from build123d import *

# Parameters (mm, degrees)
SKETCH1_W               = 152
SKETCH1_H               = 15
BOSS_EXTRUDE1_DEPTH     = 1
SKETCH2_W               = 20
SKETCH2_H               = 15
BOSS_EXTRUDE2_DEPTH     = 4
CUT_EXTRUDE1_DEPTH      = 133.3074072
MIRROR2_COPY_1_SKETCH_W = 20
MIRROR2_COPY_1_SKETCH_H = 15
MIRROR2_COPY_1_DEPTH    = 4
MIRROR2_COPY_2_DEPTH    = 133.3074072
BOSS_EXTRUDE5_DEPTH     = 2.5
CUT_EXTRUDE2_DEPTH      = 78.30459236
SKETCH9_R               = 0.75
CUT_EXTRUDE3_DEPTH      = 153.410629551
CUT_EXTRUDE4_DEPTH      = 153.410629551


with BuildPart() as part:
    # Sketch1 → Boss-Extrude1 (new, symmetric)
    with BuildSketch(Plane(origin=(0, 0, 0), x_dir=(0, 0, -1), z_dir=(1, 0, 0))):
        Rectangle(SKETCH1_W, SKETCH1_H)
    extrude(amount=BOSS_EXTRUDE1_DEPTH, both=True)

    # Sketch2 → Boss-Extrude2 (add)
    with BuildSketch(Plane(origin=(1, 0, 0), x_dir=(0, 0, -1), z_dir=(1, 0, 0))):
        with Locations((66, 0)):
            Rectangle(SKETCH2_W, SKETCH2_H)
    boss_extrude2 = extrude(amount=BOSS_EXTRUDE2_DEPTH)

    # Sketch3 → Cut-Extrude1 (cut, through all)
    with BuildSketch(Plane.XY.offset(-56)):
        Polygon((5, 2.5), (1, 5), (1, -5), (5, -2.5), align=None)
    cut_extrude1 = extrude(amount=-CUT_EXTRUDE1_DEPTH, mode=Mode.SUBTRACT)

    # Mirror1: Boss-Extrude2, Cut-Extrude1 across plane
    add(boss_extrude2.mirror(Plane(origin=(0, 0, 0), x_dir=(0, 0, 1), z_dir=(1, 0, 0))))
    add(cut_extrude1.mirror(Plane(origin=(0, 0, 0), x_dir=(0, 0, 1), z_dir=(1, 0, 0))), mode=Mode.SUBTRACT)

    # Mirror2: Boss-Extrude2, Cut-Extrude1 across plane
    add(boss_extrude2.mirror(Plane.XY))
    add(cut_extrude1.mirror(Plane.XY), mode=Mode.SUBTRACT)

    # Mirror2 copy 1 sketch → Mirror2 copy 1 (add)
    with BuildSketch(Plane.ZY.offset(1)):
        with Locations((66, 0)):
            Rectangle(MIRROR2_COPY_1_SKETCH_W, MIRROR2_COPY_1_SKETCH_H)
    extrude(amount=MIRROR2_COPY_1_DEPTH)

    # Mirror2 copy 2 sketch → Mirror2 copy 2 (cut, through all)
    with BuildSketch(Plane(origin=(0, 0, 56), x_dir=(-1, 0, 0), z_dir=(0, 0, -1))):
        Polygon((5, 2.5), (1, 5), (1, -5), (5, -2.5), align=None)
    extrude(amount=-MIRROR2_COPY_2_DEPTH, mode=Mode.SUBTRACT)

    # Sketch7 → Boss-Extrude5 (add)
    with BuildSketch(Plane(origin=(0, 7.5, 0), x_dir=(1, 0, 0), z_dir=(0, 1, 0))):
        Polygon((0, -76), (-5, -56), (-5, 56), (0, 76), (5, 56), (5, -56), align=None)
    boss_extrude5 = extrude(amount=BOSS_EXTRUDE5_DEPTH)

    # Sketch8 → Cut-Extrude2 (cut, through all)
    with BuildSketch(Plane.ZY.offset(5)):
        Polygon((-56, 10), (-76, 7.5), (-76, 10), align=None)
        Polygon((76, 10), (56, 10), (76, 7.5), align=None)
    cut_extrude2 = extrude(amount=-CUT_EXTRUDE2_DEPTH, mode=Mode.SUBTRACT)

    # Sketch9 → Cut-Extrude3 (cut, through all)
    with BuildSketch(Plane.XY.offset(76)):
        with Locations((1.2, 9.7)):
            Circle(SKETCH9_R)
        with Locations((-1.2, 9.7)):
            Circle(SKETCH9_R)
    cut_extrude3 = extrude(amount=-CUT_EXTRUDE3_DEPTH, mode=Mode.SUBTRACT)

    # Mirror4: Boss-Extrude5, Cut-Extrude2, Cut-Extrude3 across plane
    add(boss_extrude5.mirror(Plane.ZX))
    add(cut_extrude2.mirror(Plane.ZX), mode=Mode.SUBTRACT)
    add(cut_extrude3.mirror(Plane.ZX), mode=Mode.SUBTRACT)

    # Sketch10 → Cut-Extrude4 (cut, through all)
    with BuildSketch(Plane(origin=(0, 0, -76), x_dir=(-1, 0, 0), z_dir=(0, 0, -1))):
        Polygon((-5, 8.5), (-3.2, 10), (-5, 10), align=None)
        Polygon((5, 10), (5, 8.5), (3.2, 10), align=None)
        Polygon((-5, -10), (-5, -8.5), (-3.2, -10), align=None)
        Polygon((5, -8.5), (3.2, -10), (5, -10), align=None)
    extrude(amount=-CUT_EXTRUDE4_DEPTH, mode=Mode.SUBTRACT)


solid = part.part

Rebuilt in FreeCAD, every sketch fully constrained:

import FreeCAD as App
import Part
import Sketcher

V = App.Vector
Q = App.Units.Quantity

doc = App.newDocument("Part")
body = doc.addObject("PartDesign::Body", "Body")

sketch1 = body.newObject("Sketcher::SketchObject", "Sketch")
sketch1.AttachmentSupport = (doc.getObject("YZ_Plane"), [""])
sketch1.MapMode = "FlatFace"
sketch1.addGeometry(Part.LineSegment(V(8, 76, 0), V(-8, 76, 0)), False)
sketch1.addGeometry(Part.LineSegment(V(-8, 76, 0), V(-8, -76, 0)), False)
sketch1.addGeometry(Part.LineSegment(V(-8, -76, 0), V(8, -76, 0)), False)
sketch1.addGeometry(Part.LineSegment(V(8, -76, 0), V(8, 76, 0)), False)
sketch1.addConstraint(Sketcher.Constraint("Coincident", 0, 2, 1, 1))
sketch1.addConstraint(Sketcher.Constraint("Coincident", 1, 2, 2, 1))
sketch1.addConstraint(Sketcher.Constraint("Coincident", 2, 2, 3, 1))
sketch1.addConstraint(Sketcher.Constraint("Coincident", 3, 2, 0, 1))
sketch1.addConstraint(Sketcher.Constraint("Horizontal", 0))
sketch1.addConstraint(Sketcher.Constraint("Vertical", 1))
sketch1.addConstraint(Sketcher.Constraint("Horizontal", 2))
sketch1.addConstraint(Sketcher.Constraint("Vertical", 3))
sketch1.addConstraint(Sketcher.Constraint("Symmetric", 0, 2, 2, 2, -1, 1))
sketch1.addConstraint(Sketcher.Constraint("DistanceX", 0, 2, 0, 1, Q("15 mm")))
sketch1.addConstraint(Sketcher.Constraint("DistanceY", 1, 2, 1, 1, Q("152 mm")))
pad1 = body.newObject("PartDesign::Pad", "Pad")
pad1.Profile = sketch1
pad1.Length = 2
pad1.Midplane = True

sketch2 = body.newObject("Sketcher::SketchObject", "Sketch001")
sketch2.AttachmentSupport = (doc.getObject("YZ_Plane"), [""])
sketch2.MapMode = "FlatFace"
sketch2.AttachmentOffset = App.Placement(V(0, 0, 1), App.Rotation())
sketch2.addGeometry(Part.LineSegment(V(8, -56, 0), V(-8, -56, 0)), False)
sketch2.addGeometry(Part.LineSegment(V(-8, -56, 0), V(-8, -76, 0)), False)
sketch2.addGeometry(Part.LineSegment(V(-8, -76, 0), V(8, -76, 0)), False)
sketch2.addGeometry(Part.LineSegment(V(8, -76, 0), V(8, -56, 0)), False)
sketch2.addConstraint(Sketcher.Constraint("Coincident", 0, 2, 1, 1))
sketch2.addConstraint(Sketcher.Constraint("Coincident", 1, 2, 2, 1))
sketch2.addConstraint(Sketcher.Constraint("Coincident", 2, 2, 3, 1))
sketch2.addConstraint(Sketcher.Constraint("Coincident", 3, 2, 0, 1))
sketch2.addConstraint(Sketcher.Constraint("Horizontal", 0))
sketch2.addConstraint(Sketcher.Constraint("Vertical", 1))
sketch2.addConstraint(Sketcher.Constraint("Horizontal", 2))
sketch2.addConstraint(Sketcher.Constraint("Vertical", 3))
sketch2.addConstraint(Sketcher.Constraint("DistanceX", 0, 2, 0, 1, Q("15 mm")))
sketch2.addConstraint(Sketcher.Constraint("DistanceY", 1, 2, 1, 1, Q("20 mm")))
sketch2.addConstraint(Sketcher.Constraint("DistanceY", 0, 2, -1, 1, Q("56 mm")))
sketch2.addConstraint(Sketcher.Constraint("DistanceX", 0, 2, -1, 1, Q("7.5 mm")))
pad2 = body.newObject("PartDesign::Pad", "Pad001")
pad2.Profile = sketch2
pad2.Length = 4

sketch3 = body.newObject("Sketcher::SketchObject", "Sketch002")
sketch3.AttachmentSupport = (doc.getObject("XY_Plane"), [""])
sketch3.MapMode = "FlatFace"
sketch3.AttachmentOffset = App.Placement(V(0, 0, -56), App.Rotation())
sketch3.addGeometry(Part.LineSegment(V(5, 2.5, 0), V(1, 5, 0)), False)
sketch3.addGeometry(Part.LineSegment(V(1, 5, 0), V(1, -5, 0)), False)
sketch3.addGeometry(Part.LineSegment(V(1, -5, 0), V(5, -2.5, 0)), False)
sketch3.addGeometry(Part.LineSegment(V(5, -2.5, 0), V(5, 2.5, 0)), False)
sketch3.addConstraint(Sketcher.Constraint("Coincident", 0, 2, 1, 1))
sketch3.addConstraint(Sketcher.Constraint("Coincident", 1, 2, 2, 1))
sketch3.addConstraint(Sketcher.Constraint("Coincident", 2, 2, 3, 1))
sketch3.addConstraint(Sketcher.Constraint("Coincident", 3, 2, 0, 1))
sketch3.addConstraint(Sketcher.Constraint("Vertical", 1))
sketch3.addConstraint(Sketcher.Constraint("Vertical", 3))
sketch3.addConstraint(Sketcher.Constraint("Equal", 0, 2))
sketch3.addConstraint(Sketcher.Constraint("DistanceY", 1, 2, 1, 1, Q("10 mm")))
sketch3.addConstraint(Sketcher.Constraint("DistanceY", 3, 1, 3, 2, Q("5 mm")))
sketch3.addConstraint(Sketcher.Constraint("DistanceX", -1, 1, 0, 2, Q("1 mm")))
sketch3.addConstraint(Sketcher.Constraint("DistanceY", -1, 1, 0, 2, Q("5 mm")))
sketch3.addConstraint(Sketcher.Constraint("DistanceX", -1, 1, 2, 2, Q("5 mm")))
pocket1 = body.newObject("PartDesign::Pocket", "Pocket")
pocket1.Profile = sketch3
pocket1.Type = "ThroughAll"
doc.recompute()

mirrored = body.newObject("PartDesign::Mirrored", "Mirrored")
mirrored.Originals = [pad2, pocket1]
mirrored.MirrorPlane = (doc.getObject("YZ_Plane"), [""])
body.Tip = mirrored
doc.recompute()

mirrored2 = body.newObject("PartDesign::Mirrored", "Mirrored001")
mirrored2.Originals = [pad2, pocket1]
mirrored2.MirrorPlane = (doc.getObject("XY_Plane"), [""])
body.Tip = mirrored2

sketch4 = body.newObject("Sketcher::SketchObject", "Sketch003")
sketch4.AttachmentSupport = (doc.getObject("YZ_Plane"), [""])
sketch4.MapMode = "FlatFace"
sketch4.AttachmentOffset = App.Placement(V(0, 0, -1), App.Rotation())
sketch4.addGeometry(Part.LineSegment(V(8, 56, 0), V(-8, 56, 0)), False)
sketch4.addGeometry(Part.LineSegment(V(-8, 56, 0), V(-8, 76, 0)), False)
sketch4.addGeometry(Part.LineSegment(V(-8, 76, 0), V(8, 76, 0)), False)
sketch4.addGeometry(Part.LineSegment(V(8, 76, 0), V(8, 56, 0)), False)
sketch4.addConstraint(Sketcher.Constraint("Coincident", 0, 2, 1, 1))
sketch4.addConstraint(Sketcher.Constraint("Coincident", 1, 2, 2, 1))
sketch4.addConstraint(Sketcher.Constraint("Coincident", 2, 2, 3, 1))
sketch4.addConstraint(Sketcher.Constraint("Coincident", 3, 2, 0, 1))
sketch4.addConstraint(Sketcher.Constraint("Horizontal", 0))
sketch4.addConstraint(Sketcher.Constraint("Vertical", 1))
sketch4.addConstraint(Sketcher.Constraint("Horizontal", 2))
sketch4.addConstraint(Sketcher.Constraint("Vertical", 3))
sketch4.addConstraint(Sketcher.Constraint("DistanceX", 0, 2, 0, 1, Q("15 mm")))
sketch4.addConstraint(Sketcher.Constraint("DistanceY", 1, 1, 1, 2, Q("20 mm")))
sketch4.addConstraint(Sketcher.Constraint("DistanceY", -1, 1, 0, 2, Q("56 mm")))
sketch4.addConstraint(Sketcher.Constraint("DistanceX", 0, 2, -1, 1, Q("7.5 mm")))
pad3 = body.newObject("PartDesign::Pad", "Pad002")
pad3.Profile = sketch4
pad3.Length = 4
pad3.Reversed = True

sketch5 = body.newObject("Sketcher::SketchObject", "Sketch004")
sketch5.AttachmentSupport = (doc.getObject("XY_Plane"), [""])
sketch5.MapMode = "FlatFace"
sketch5.AttachmentOffset = App.Placement(V(0, 0, 56), App.Rotation())
sketch5.addGeometry(Part.LineSegment(V(-5, 2.5, 0), V(-1, 5, 0)), False)
sketch5.addGeometry(Part.LineSegment(V(-1, 5, 0), V(-1, -5, 0)), False)
sketch5.addGeometry(Part.LineSegment(V(-1, -5, 0), V(-5, -2.5, 0)), False)
sketch5.addGeometry(Part.LineSegment(V(-5, -2.5, 0), V(-5, 2.5, 0)), False)
sketch5.addConstraint(Sketcher.Constraint("Coincident", 0, 2, 1, 1))
sketch5.addConstraint(Sketcher.Constraint("Coincident", 1, 2, 2, 1))
sketch5.addConstraint(Sketcher.Constraint("Coincident", 2, 2, 3, 1))
sketch5.addConstraint(Sketcher.Constraint("Coincident", 3, 2, 0, 1))
sketch5.addConstraint(Sketcher.Constraint("Vertical", 1))
sketch5.addConstraint(Sketcher.Constraint("Vertical", 3))
sketch5.addConstraint(Sketcher.Constraint("Equal", 0, 2))
sketch5.addConstraint(Sketcher.Constraint("DistanceY", 1, 2, 1, 1, Q("10 mm")))
sketch5.addConstraint(Sketcher.Constraint("DistanceY", 3, 1, 3, 2, Q("5 mm")))
sketch5.addConstraint(Sketcher.Constraint("DistanceX", 0, 2, -1, 1, Q("1 mm")))
sketch5.addConstraint(Sketcher.Constraint("DistanceY", -1, 1, 0, 2, Q("5 mm")))
sketch5.addConstraint(Sketcher.Constraint("DistanceX", 2, 2, -1, 1, Q("5 mm")))
pocket2 = body.newObject("PartDesign::Pocket", "Pocket001")
pocket2.Profile = sketch5
pocket2.Type = "ThroughAll"
pocket2.Reversed = True

sketch6 = body.newObject("Sketcher::SketchObject", "Sketch005")
sketch6.AttachmentSupport = (doc.getObject("XZ_Plane"), [""])
sketch6.MapMode = "FlatFace"
sketch6.AttachmentOffset = App.Placement(V(0, 0, -7.5), App.Rotation())
sketch6.addGeometry(Part.LineSegment(V(-5, 56, 0), V(0, 76, 0)), False)
sketch6.addGeometry(Part.LineSegment(V(0, 76, 0), V(5, 56, 0)), False)
sketch6.addGeometry(Part.LineSegment(V(5, 56, 0), V(5, -56, 0)), False)
sketch6.addGeometry(Part.LineSegment(V(5, -56, 0), V(0, -76, 0)), False)
sketch6.addGeometry(Part.LineSegment(V(0, -76, 0), V(-5, -56, 0)), False)
sketch6.addGeometry(Part.LineSegment(V(-5, -56, 0), V(-5, 56, 0)), False)
sketch6.addConstraint(Sketcher.Constraint("Coincident", 0, 2, 1, 1))
sketch6.addConstraint(Sketcher.Constraint("Coincident", 1, 2, 2, 1))
sketch6.addConstraint(Sketcher.Constraint("Coincident", 2, 2, 3, 1))
sketch6.addConstraint(Sketcher.Constraint("Coincident", 3, 2, 4, 1))
sketch6.addConstraint(Sketcher.Constraint("Coincident", 4, 2, 5, 1))
sketch6.addConstraint(Sketcher.Constraint("Coincident", 5, 2, 0, 1))
sketch6.addConstraint(Sketcher.Constraint("Vertical", 2))
sketch6.addConstraint(Sketcher.Constraint("Vertical", 5))
sketch6.addConstraint(Sketcher.Constraint("Symmetric", 0, 2, 3, 2, -1, 1))
sketch6.addConstraint(Sketcher.Constraint("Symmetric", 1, 2, 4, 2, -1, 1))
sketch6.addConstraint(Sketcher.Constraint("PointOnObject", 0, 2, -2))
sketch6.addConstraint(Sketcher.Constraint("Parallel", 0, 3))
sketch6.addConstraint(Sketcher.Constraint("Horizontal", 2, 2, 4, 2))
sketch6.addConstraint(Sketcher.Constraint("DistanceY", 2, 2, 2, 1, Q("112 mm")))
sketch6.addConstraint(Sketcher.Constraint("DistanceY", -1, 1, 0, 2, Q("76 mm")))
sketch6.addConstraint(Sketcher.Constraint("DistanceX", -1, 1, 1, 2, Q("5 mm")))
pad4 = body.newObject("PartDesign::Pad", "Pad003")
pad4.Profile = sketch6
pad4.Length = 2.5
pad4.Reversed = True

sketch7 = body.newObject("Sketcher::SketchObject", "Sketch006")
sketch7.AttachmentSupport = (doc.getObject("YZ_Plane"), [""])
sketch7.MapMode = "FlatFace"
sketch7.AttachmentOffset = App.Placement(V(0, 0, -5), App.Rotation())
sketch7.addGeometry(Part.LineSegment(V(7.5, -76, 0), V(10, -56, 0)), False)
sketch7.addGeometry(Part.LineSegment(V(10, -56, 0), V(10, -76, 0)), False)
sketch7.addGeometry(Part.LineSegment(V(10, -76, 0), V(7.5, -76, 0)), False)
sketch7.addGeometry(Part.LineSegment(V(10, 76, 0), V(10, 56, 0)), False)
sketch7.addGeometry(Part.LineSegment(V(10, 56, 0), V(7.5, 76, 0)), False)
sketch7.addGeometry(Part.LineSegment(V(7.5, 76, 0), V(10, 76, 0)), False)
sketch7.addConstraint(Sketcher.Constraint("Coincident", 0, 2, 1, 1))
sketch7.addConstraint(Sketcher.Constraint("Coincident", 1, 2, 2, 1))
sketch7.addConstraint(Sketcher.Constraint("Coincident", 2, 2, 0, 1))
sketch7.addConstraint(Sketcher.Constraint("Coincident", 3, 2, 4, 1))
sketch7.addConstraint(Sketcher.Constraint("Coincident", 4, 2, 5, 1))
sketch7.addConstraint(Sketcher.Constraint("Coincident", 5, 2, 3, 1))
sketch7.addConstraint(Sketcher.Constraint("Vertical", 1))
sketch7.addConstraint(Sketcher.Constraint("Horizontal", 2))
sketch7.addConstraint(Sketcher.Constraint("Vertical", 3))
sketch7.addConstraint(Sketcher.Constraint("Horizontal", 5))
sketch7.addConstraint(Sketcher.Constraint("Symmetric", 0, 2, 3, 2, -1))
sketch7.addConstraint(Sketcher.Constraint("Symmetric", 2, 2, 4, 2, -1))
sketch7.addConstraint(Sketcher.Constraint("DistanceY", 1, 2, 1, 1, Q("20 mm")))
sketch7.addConstraint(Sketcher.Constraint("DistanceX", 2, 2, 2, 1, Q("2.5 mm")))
sketch7.addConstraint(Sketcher.Constraint("DistanceX", -1, 1, 0, 2, Q("10 mm")))
sketch7.addConstraint(Sketcher.Constraint("DistanceY", 0, 2, -1, 1, Q("56 mm")))
pocket3 = body.newObject("PartDesign::Pocket", "Pocket002")
pocket3.Profile = sketch7
pocket3.Type = "ThroughAll"
pocket3.Reversed = True

sketch8 = body.newObject("Sketcher::SketchObject", "Sketch007")
sketch8.AttachmentSupport = (doc.getObject("XY_Plane"), [""])
sketch8.MapMode = "FlatFace"
sketch8.AttachmentOffset = App.Placement(V(0, 0, 76), App.Rotation())
sketch8.addGeometry(Part.Circle(V(1.2, 9.7, 0), V(0, 0, 1), 0.8), False)
sketch8.addGeometry(Part.Circle(V(-1.2, 9.7, 0), V(0, 0, 1), 0.8), False)
sketch8.addConstraint(Sketcher.Constraint("Equal", 0, 1))
sketch8.addConstraint(Sketcher.Constraint("Symmetric", 0, 3, 1, 3, -2))
sketch8.addConstraint(Sketcher.Constraint("Diameter", 0, Q("1.5 mm")))
sketch8.addConstraint(Sketcher.Constraint("DistanceX", -1, 1, 0, 3, Q("1.2 mm")))
sketch8.addConstraint(Sketcher.Constraint("DistanceY", -1, 1, 0, 3, Q("9.7 mm")))
pocket4 = body.newObject("PartDesign::Pocket", "Pocket003")
pocket4.Profile = sketch8
pocket4.Type = "ThroughAll"
doc.recompute()

mirrored3 = body.newObject("PartDesign::Mirrored", "Mirrored002")
mirrored3.Originals = [pad4, pocket3, pocket4]
mirrored3.MirrorPlane = (doc.getObject("XZ_Plane"), [""])
body.Tip = mirrored3

sketch9 = body.newObject("Sketcher::SketchObject", "Sketch008")
sketch9.AttachmentSupport = (doc.getObject("XY_Plane"), [""])
sketch9.MapMode = "FlatFace"
sketch9.AttachmentOffset = App.Placement(V(0, 0, -76), App.Rotation())
sketch9.addGeometry(Part.LineSegment(V(5, 8.5, 0), V(3.2, 10, 0)), False)
sketch9.addGeometry(Part.LineSegment(V(3.2, 10, 0), V(5, 10, 0)), False)
sketch9.addGeometry(Part.LineSegment(V(5, 10, 0), V(5, 8.5, 0)), False)
sketch9.addGeometry(Part.LineSegment(V(-5, 8.5, 0), V(-5, 10, 0)), False)
sketch9.addGeometry(Part.LineSegment(V(-5, 10, 0), V(-3.2, 10, 0)), False)
sketch9.addGeometry(Part.LineSegment(V(-3.2, 10, 0), V(-5, 8.5, 0)), False)
sketch9.addGeometry(Part.LineSegment(V(5, -8.5, 0), V(5, -10, 0)), False)
sketch9.addGeometry(Part.LineSegment(V(5, -10, 0), V(3.2, -10, 0)), False)
sketch9.addGeometry(Part.LineSegment(V(3.2, -10, 0), V(5, -8.5, 0)), False)
sketch9.addGeometry(Part.LineSegment(V(-5, -8.5, 0), V(-3.2, -10, 0)), False)
sketch9.addGeometry(Part.LineSegment(V(-3.2, -10, 0), V(-5, -10, 0)), False)
sketch9.addGeometry(Part.LineSegment(V(-5, -10, 0), V(-5, -8.5, 0)), False)
sketch9.addConstraint(Sketcher.Constraint("Coincident", 0, 2, 1, 1))
sketch9.addConstraint(Sketcher.Constraint("Coincident", 1, 2, 2, 1))
sketch9.addConstraint(Sketcher.Constraint("Coincident", 2, 2, 0, 1))
sketch9.addConstraint(Sketcher.Constraint("Coincident", 3, 2, 4, 1))
sketch9.addConstraint(Sketcher.Constraint("Coincident", 4, 2, 5, 1))
sketch9.addConstraint(Sketcher.Constraint("Coincident", 5, 2, 3, 1))
sketch9.addConstraint(Sketcher.Constraint("Coincident", 6, 2, 7, 1))
sketch9.addConstraint(Sketcher.Constraint("Coincident", 7, 2, 8, 1))
sketch9.addConstraint(Sketcher.Constraint("Coincident", 8, 2, 6, 1))
sketch9.addConstraint(Sketcher.Constraint("Coincident", 9, 2, 10, 1))
sketch9.addConstraint(Sketcher.Constraint("Coincident", 10, 2, 11, 1))
sketch9.addConstraint(Sketcher.Constraint("Coincident", 11, 2, 9, 1))
sketch9.addConstraint(Sketcher.Constraint("Horizontal", 1))
sketch9.addConstraint(Sketcher.Constraint("Vertical", 2))
sketch9.addConstraint(Sketcher.Constraint("Vertical", 3))
sketch9.addConstraint(Sketcher.Constraint("Horizontal", 4))
sketch9.addConstraint(Sketcher.Constraint("Vertical", 6))
sketch9.addConstraint(Sketcher.Constraint("Horizontal", 7))
sketch9.addConstraint(Sketcher.Constraint("Horizontal", 10))
sketch9.addConstraint(Sketcher.Constraint("Vertical", 11))
sketch9.addConstraint(Sketcher.Constraint("Symmetric", 3, 2, 6, 2, -1, 1))
sketch9.addConstraint(Sketcher.Constraint("Symmetric", 0, 2, 9, 2, -1, 1))
sketch9.addConstraint(Sketcher.Constraint("Symmetric", 2, 2, 11, 2, -1, 1))
sketch9.addConstraint(Sketcher.Constraint("Symmetric", 1, 2, 3, 2, -2))
sketch9.addConstraint(Sketcher.Constraint("Parallel", 5, 8))
sketch9.addConstraint(Sketcher.Constraint("Horizontal", 2, 2, 5, 2))
sketch9.addConstraint(Sketcher.Constraint("Horizontal", 8, 2, 11, 2))
sketch9.addConstraint(Sketcher.Constraint("Vertical", 0, 2, 7, 2))
sketch9.addConstraint(Sketcher.Constraint("DistanceX", 1, 1, 1, 2, Q("1.8 mm")))
sketch9.addConstraint(Sketcher.Constraint("DistanceY", 2, 2, 2, 1, Q("1.5 mm")))
sketch9.addConstraint(Sketcher.Constraint("DistanceY", -1, 1, 0, 2, Q("10 mm")))
sketch9.addConstraint(Sketcher.Constraint("DistanceX", -1, 1, 1, 2, Q("5 mm")))
pocket5 = body.newObject("PartDesign::Pocket", "Pocket004")
pocket5.Profile = sketch9
pocket5.Type = "ThroughAll"
pocket5.Reversed = True

doc.recompute()
